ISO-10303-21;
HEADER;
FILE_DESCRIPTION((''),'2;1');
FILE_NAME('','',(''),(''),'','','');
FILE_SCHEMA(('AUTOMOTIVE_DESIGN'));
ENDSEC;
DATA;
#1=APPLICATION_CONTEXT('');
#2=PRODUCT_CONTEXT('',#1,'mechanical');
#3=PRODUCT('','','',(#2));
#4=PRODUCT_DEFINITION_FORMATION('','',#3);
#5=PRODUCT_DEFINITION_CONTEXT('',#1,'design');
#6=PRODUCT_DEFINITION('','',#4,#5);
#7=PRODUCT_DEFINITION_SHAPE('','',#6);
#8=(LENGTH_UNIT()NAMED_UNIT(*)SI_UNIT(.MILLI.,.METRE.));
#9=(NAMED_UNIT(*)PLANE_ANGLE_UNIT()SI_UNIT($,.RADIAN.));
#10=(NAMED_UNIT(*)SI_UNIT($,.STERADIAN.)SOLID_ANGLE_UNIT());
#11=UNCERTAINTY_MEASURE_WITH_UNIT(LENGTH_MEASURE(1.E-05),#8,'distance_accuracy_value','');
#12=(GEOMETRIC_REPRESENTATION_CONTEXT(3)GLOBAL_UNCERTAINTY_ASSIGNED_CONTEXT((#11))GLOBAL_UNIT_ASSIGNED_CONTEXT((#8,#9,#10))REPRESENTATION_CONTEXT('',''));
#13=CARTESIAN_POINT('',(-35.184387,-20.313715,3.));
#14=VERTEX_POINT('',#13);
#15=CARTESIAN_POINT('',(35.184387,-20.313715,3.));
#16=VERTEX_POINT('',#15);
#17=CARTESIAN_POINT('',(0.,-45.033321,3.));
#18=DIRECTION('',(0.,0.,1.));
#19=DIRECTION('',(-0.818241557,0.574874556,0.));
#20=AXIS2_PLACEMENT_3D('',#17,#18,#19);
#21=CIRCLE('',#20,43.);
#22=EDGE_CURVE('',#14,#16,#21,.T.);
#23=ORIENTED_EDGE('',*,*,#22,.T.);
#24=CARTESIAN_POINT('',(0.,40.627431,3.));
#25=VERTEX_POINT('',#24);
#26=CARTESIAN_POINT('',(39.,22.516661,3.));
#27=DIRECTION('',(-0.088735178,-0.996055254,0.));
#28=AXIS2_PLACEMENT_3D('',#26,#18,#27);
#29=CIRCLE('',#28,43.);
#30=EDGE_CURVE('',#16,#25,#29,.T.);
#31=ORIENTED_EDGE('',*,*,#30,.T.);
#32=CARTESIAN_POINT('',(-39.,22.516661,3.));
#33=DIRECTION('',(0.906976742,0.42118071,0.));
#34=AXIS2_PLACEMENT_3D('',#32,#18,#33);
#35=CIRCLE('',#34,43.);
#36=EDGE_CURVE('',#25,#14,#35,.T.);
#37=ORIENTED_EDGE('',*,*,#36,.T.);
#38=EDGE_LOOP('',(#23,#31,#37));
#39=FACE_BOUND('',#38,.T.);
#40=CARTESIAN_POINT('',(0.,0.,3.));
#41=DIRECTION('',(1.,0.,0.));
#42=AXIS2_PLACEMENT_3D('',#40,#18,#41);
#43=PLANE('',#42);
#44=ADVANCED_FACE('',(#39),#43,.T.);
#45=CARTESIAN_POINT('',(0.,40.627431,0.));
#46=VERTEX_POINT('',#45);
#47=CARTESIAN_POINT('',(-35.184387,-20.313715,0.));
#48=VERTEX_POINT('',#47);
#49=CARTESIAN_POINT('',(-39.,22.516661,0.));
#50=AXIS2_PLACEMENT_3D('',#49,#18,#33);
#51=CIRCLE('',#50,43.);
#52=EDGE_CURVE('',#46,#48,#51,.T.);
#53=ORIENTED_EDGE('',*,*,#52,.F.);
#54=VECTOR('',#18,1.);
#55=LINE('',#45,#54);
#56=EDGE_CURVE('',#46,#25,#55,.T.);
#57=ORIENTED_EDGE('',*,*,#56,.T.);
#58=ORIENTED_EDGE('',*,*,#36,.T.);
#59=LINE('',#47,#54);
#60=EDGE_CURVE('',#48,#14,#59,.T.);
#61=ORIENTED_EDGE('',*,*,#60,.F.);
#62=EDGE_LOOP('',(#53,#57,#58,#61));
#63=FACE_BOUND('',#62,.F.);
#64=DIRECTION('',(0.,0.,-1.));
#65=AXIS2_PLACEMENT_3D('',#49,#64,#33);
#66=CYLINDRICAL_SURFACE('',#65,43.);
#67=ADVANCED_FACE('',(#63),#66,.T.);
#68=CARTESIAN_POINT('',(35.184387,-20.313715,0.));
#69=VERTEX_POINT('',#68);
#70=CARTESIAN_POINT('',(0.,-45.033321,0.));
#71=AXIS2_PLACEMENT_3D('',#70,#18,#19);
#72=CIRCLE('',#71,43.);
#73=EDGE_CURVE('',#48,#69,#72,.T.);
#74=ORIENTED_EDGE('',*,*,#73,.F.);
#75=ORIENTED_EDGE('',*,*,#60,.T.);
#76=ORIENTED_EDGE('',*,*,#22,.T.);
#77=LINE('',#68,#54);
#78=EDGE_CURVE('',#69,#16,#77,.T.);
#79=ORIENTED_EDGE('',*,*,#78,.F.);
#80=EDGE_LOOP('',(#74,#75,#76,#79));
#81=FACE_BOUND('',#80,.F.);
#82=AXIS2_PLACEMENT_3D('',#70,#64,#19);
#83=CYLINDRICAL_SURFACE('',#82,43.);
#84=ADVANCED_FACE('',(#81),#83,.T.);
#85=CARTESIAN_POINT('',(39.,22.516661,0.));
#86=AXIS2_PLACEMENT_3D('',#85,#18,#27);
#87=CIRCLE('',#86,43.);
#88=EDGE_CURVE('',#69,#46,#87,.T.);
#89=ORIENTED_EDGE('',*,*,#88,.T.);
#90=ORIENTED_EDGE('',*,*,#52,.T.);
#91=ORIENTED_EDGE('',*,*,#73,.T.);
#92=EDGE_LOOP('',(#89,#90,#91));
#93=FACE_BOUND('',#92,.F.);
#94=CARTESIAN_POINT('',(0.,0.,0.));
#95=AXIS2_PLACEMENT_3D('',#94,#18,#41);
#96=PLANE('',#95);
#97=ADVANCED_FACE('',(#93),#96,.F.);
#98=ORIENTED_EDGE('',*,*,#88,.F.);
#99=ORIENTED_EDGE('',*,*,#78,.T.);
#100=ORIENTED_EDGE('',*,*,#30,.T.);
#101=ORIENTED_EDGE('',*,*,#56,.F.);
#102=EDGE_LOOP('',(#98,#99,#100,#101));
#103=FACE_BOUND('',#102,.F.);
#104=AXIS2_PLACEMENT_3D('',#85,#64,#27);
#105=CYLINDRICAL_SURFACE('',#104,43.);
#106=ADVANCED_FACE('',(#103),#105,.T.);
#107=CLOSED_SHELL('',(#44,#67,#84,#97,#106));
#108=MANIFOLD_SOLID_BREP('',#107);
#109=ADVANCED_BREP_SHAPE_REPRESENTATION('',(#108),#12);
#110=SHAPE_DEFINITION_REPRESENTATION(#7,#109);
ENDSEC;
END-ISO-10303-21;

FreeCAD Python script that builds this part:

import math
import FreeCAD as App
import Part
import Sketcher
Q = App.Units.Quantity

doc = App.newDocument("Part")
body = doc.addObject("PartDesign::Body", "Body")

# Sketch on XY plane
sketch1 = body.newObject("Sketcher::SketchObject", "Sketch")
sketch1.AttachmentSupport = (doc.getObject("XY_Plane"), [""])
sketch1.MapMode = "FlatFace"
sketch1.addGeometry([
    Part.ArcOfCircle(Part.Circle(App.Vector(39, 22.516661, 0), App.Vector(0, 0, 1), 43), math.radians(-95.090847), math.radians(155.090847)),
    Part.ArcOfCircle(Part.Circle(App.Vector(-39, 22.516661, 0), App.Vector(0, 0, 1), 43), math.radians(24.909153), math.radians(275.090847)),
    Part.ArcOfCircle(Part.Circle(App.Vector(0, -45.033321, 0), App.Vector(0, 0, 1), 43), math.radians(144.909152), math.radians(395.090848)),
], False)
sketch1.addConstraint([
    Sketcher.Constraint("Coincident", 0, 2, 1, 1),
    Sketcher.Constraint("Coincident", 1, 2, 2, 1),
    Sketcher.Constraint("Coincident", 2, 2, 0, 1),
    Sketcher.Constraint("Equal", 0, 1),
    Sketcher.Constraint("Equal", 1, 2),
    Sketcher.Constraint("Symmetric", 0, 3, 1, 3, -2),
    Sketcher.Constraint("PointOnObject", 2, 3, -2),
    Sketcher.Constraint("Radius", 0, Q("43 mm")),
    Sketcher.Constraint("DistanceX", -1, 1, 0, 3, Q("39 mm")),
    Sketcher.Constraint("DistanceY", -1, 1, 0, 3, Q("22.516661 mm")),
    Sketcher.Constraint("DistanceY", 2, 3, -1, 1, Q("45.033321 mm")),
])
pad1 = body.newObject("PartDesign::Pad", "Pad")
pad1.Profile = sketch1
pad1.Length = 3

doc.recompute()
